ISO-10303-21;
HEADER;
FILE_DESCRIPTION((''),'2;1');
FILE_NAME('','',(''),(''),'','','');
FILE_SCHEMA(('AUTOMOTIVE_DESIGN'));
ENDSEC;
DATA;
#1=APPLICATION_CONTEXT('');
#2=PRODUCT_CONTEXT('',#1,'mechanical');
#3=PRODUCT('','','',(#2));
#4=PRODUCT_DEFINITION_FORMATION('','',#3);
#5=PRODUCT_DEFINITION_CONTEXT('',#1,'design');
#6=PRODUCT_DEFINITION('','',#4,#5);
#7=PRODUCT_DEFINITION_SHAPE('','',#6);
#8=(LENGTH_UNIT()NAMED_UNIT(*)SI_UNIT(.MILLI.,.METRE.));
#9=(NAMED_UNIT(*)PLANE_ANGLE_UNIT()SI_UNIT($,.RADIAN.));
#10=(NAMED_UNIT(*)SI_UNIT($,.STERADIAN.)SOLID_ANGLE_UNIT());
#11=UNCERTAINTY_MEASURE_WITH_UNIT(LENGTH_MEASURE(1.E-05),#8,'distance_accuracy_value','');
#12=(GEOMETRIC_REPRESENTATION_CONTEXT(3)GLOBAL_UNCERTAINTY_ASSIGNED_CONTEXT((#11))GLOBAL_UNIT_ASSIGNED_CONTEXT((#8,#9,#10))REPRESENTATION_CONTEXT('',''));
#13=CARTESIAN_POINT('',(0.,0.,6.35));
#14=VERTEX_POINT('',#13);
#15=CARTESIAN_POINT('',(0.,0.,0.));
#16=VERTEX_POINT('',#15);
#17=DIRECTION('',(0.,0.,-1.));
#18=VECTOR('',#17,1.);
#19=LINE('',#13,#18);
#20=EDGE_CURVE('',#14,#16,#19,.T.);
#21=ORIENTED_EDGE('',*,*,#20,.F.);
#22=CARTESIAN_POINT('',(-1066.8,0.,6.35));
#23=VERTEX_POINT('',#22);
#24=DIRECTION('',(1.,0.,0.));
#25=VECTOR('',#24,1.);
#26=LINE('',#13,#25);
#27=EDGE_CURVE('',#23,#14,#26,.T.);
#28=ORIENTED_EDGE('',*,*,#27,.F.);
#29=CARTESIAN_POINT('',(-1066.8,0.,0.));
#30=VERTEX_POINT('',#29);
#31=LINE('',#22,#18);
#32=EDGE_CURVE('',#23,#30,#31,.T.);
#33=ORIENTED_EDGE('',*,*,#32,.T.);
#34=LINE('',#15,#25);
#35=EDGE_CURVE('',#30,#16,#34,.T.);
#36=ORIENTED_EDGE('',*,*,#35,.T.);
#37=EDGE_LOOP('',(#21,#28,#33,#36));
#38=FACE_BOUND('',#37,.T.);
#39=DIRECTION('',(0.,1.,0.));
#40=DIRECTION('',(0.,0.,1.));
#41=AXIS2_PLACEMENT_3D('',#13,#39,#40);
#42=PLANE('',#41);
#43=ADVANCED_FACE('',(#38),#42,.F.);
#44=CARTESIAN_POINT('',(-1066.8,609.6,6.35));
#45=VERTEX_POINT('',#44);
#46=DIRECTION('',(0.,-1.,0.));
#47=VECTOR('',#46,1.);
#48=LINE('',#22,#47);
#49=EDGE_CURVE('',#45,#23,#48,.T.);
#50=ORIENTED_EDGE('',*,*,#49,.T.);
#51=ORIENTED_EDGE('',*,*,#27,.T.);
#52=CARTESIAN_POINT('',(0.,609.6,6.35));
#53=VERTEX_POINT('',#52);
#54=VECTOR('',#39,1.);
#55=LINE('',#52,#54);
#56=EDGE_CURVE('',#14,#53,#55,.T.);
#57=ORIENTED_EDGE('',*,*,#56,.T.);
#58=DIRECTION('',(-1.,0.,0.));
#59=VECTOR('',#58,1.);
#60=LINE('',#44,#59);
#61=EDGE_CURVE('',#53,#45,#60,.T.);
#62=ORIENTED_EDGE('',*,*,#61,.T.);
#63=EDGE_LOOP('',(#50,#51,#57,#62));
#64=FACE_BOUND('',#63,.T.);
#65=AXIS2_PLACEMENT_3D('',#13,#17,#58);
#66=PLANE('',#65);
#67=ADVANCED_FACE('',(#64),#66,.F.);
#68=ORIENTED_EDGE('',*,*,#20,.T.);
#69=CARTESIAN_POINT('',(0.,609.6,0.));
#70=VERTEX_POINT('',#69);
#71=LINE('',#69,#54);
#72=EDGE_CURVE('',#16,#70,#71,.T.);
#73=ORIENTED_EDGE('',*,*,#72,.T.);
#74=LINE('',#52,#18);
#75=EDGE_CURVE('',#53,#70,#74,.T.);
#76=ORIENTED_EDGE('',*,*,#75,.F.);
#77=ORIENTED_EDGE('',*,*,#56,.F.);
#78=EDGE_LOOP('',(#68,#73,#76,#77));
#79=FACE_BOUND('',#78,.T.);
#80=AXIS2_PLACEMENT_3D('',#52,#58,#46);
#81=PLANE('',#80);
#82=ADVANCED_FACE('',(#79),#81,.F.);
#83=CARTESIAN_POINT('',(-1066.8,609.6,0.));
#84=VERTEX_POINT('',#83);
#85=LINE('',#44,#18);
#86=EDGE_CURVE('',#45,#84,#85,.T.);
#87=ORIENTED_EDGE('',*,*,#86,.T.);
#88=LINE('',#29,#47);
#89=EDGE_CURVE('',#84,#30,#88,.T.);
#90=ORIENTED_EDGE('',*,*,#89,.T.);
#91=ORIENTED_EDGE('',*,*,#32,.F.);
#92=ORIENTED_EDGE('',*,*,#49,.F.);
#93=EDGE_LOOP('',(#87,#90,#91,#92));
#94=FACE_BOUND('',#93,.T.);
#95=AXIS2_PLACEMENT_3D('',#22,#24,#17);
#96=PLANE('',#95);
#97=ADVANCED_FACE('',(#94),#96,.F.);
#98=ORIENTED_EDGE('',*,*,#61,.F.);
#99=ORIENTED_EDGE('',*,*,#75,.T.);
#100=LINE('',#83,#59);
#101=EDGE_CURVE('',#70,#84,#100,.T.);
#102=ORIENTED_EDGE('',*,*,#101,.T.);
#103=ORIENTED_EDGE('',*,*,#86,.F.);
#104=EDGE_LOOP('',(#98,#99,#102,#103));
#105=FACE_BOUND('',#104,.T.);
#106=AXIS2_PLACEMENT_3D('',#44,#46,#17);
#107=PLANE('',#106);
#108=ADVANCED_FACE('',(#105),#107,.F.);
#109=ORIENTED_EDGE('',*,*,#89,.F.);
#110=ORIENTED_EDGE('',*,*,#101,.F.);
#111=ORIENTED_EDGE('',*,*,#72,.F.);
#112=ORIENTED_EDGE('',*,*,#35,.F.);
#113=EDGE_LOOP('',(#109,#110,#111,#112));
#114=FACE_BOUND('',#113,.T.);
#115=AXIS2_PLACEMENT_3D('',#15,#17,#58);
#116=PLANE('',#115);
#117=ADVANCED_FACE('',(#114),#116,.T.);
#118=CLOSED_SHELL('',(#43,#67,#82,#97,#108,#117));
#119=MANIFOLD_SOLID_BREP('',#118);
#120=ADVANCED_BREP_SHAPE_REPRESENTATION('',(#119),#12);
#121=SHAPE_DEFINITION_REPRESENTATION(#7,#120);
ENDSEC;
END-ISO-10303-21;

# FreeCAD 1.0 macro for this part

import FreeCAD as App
import Part
import Sketcher
Q = App.Units.Quantity

doc = App.newDocument("Part")
body = doc.addObject("PartDesign::Body", "Body")

sketch1 = doc.addObject("Sketcher::SketchObject", "Sketch")
body.addObject(sketch1)
sketch1.AttachmentSupport = (doc.XY_Plane, [""])
sketch1.MapMode = "FlatFace"
sketch1.addGeometry([
    Part.LineSegment(App.Vector(-1067, 610, 0), App.Vector(-1067, 0, 0)),
    Part.LineSegment(App.Vector(-1067, 0, 0), App.Vector(0, 0, 0)),
    Part.LineSegment(App.Vector(0, 0, 0), App.Vector(0, 610, 0)),
    Part.LineSegment(App.Vector(0, 610, 0), App.Vector(-1067, 610, 0)),
], False)
sketch1.addConstraint([
    Sketcher.Constraint("Coincident", 0, 2, 1, 1),
    Sketcher.Constraint("Coincident", 1, 2, 2, 1),
    Sketcher.Constraint("Coincident", 2, 2, 3, 1),
    Sketcher.Constraint("Coincident", 3, 2, 0, 1),
    Sketcher.Constraint("Vertical", 0),
    Sketcher.Constraint("Horizontal", 1),
    Sketcher.Constraint("Vertical", 2),
    Sketcher.Constraint("Horizontal", 3),
    Sketcher.Constraint("Coincident", 1, 2, -1, 1),
    Sketcher.Constraint("DistanceX", 1, 1, 1, 2, Q("42 in")),
    Sketcher.Constraint("DistanceY", 0, 2, 0, 1, Q("24 in")),
])
pad1 = doc.addObject("PartDesign::Pad", "Pad")
body.addObject(pad1)
pad1.Profile = sketch1
pad1.Length = Q("0.25 in")

doc.recompute()
